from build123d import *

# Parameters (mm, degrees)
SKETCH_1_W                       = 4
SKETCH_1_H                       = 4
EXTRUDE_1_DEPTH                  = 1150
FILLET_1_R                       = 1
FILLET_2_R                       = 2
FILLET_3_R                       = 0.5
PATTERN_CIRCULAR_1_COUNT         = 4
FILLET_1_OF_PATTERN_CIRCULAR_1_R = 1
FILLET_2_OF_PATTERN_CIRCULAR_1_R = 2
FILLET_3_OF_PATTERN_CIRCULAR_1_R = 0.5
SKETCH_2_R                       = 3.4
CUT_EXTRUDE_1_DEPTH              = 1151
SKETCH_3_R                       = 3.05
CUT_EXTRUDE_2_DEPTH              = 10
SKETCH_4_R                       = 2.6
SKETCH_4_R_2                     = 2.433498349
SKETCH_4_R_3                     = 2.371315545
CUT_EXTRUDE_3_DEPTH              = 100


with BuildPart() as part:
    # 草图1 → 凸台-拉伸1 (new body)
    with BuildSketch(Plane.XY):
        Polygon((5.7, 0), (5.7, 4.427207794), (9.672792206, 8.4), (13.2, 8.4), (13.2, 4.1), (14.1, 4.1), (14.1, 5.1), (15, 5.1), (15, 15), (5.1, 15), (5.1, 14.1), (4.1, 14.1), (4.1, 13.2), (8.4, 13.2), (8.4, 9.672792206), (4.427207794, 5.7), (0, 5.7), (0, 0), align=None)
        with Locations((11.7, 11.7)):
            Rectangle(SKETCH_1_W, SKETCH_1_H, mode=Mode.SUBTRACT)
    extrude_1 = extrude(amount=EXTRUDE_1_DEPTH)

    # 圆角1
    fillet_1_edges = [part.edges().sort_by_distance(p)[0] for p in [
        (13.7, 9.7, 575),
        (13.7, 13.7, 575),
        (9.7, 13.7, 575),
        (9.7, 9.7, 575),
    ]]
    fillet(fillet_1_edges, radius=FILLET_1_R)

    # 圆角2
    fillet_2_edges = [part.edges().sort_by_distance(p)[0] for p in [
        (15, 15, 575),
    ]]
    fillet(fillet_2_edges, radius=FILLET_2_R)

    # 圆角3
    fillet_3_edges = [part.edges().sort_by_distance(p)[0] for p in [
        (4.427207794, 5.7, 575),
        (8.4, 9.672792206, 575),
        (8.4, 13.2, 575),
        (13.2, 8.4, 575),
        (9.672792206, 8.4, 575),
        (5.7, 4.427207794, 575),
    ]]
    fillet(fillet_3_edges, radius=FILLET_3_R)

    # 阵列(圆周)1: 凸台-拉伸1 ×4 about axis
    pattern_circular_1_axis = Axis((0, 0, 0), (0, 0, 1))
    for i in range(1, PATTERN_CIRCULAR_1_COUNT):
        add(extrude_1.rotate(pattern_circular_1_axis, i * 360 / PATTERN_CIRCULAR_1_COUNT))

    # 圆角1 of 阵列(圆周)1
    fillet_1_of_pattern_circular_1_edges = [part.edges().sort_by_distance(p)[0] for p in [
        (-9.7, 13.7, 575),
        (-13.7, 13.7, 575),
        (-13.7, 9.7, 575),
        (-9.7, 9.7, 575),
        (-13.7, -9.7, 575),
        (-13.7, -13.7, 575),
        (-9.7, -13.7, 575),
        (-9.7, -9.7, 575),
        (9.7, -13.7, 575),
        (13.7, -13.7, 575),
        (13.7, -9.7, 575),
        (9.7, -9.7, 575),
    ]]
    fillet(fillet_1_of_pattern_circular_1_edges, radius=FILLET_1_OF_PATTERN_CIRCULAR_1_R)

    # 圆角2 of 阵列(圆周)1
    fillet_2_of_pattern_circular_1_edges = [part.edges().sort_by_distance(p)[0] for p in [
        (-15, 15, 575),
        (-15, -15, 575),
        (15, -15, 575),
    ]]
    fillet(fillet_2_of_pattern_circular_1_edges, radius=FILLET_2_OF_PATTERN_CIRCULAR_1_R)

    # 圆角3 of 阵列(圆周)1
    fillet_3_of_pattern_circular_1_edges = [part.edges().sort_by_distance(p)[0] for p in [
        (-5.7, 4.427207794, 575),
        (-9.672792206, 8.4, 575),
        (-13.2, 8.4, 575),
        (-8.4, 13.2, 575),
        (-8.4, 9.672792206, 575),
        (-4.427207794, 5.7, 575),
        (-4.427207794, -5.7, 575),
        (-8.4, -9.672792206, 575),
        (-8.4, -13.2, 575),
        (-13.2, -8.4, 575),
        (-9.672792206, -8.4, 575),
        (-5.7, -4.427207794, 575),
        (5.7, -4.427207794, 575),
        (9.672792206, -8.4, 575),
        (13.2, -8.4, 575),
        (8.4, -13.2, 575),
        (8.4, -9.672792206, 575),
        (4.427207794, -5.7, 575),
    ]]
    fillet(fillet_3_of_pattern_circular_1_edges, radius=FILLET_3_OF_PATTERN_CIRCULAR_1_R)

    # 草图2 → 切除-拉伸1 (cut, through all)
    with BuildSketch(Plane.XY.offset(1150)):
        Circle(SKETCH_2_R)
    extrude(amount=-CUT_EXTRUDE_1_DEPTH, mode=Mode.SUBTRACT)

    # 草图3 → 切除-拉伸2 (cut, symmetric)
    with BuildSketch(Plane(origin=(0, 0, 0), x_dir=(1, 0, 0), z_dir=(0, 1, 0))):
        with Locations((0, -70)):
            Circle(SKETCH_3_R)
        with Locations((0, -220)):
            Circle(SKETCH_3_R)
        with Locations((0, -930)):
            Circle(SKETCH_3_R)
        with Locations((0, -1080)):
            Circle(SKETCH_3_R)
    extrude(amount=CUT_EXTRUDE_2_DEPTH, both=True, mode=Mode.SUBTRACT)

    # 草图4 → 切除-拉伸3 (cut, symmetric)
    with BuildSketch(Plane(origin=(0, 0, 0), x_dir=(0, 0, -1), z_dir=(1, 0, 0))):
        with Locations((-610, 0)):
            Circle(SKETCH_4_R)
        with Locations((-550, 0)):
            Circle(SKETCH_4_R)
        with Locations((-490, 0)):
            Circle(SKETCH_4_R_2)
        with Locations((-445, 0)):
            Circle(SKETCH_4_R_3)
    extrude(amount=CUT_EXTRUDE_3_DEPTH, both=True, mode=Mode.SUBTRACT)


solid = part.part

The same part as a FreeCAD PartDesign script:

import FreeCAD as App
import Part
import Sketcher
from FreeCAD import Vector
Q = App.Units.Quantity


def edges_at(feature, points):
    """Names of the edges that pass closest to the given points."""
    edges = feature.Shape.Edges
    near = lambda p: min(range(len(edges)), key=lambda i: edges[i].distToShape(Part.Vertex(*p))[0])
    return sorted({f"Edge{near(p) + 1}" for p in points})


def add_polygon(sketch, points):
    """Adds a closed chain of lines whose ends are joined by coincident constraints."""
    first, n = sketch.GeometryCount, len(points)
    for a, b in zip(points, points[1:] + points[:1]):
        sketch.addGeometry(Part.LineSegment(App.Vector(*a, 0), App.Vector(*b, 0)), False)
    for i in range(n):
        sketch.addConstraint(Sketcher.Constraint("Coincident", first + i, 2, first + (i + 1) % n, 1))

doc = App.newDocument("Part")
body = doc.addObject("PartDesign::Body", "Body")

sketch1 = body.newObject("Sketcher::SketchObject", "Sketch")
sketch1.AttachmentSupport = (doc.getObject("XY_Plane"), [""])
sketch1.MapMode = "FlatFace"
add_polygon(sketch1, [(5.7, 0), (5.7, 4.4), (9.7, 8.4), (13.2, 8.4), (13.2, 4.1), (14.1, 4.1), (14.1, 5.1), (15, 5.1), (15, 15), (5.1, 15), (5.1, 14.1), (4.1, 14.1), (4.1, 13.2), (8.4, 13.2), (8.4, 9.7), (4.4, 5.7), (0, 5.7), (0, 0)])
add_polygon(sketch1, [(13.7, 9.7), (9.7, 9.7), (9.7, 13.7), (13.7, 13.7)])
sketch1.addConstraint(Sketcher.Constraint("Vertical", 0))
sketch1.addConstraint(Sketcher.Constraint("Horizontal", 2))
sketch1.addConstraint(Sketcher.Constraint("Vertical", 3))
sketch1.addConstraint(Sketcher.Constraint("Horizontal", 4))
sketch1.addConstraint(Sketcher.Constraint("Vertical", 5))
sketch1.addConstraint(Sketcher.Constraint("Horizontal", 6))
sketch1.addConstraint(Sketcher.Constraint("Vertical", 7))
sketch1.addConstraint(Sketcher.Constraint("Horizontal", 8))
sketch1.addConstraint(Sketcher.Constraint("Vertical", 9))
sketch1.addConstraint(Sketcher.Constraint("Horizontal", 10))
sketch1.addConstraint(Sketcher.Constraint("Vertical", 11))
sketch1.addConstraint(Sketcher.Constraint("Horizontal", 12))
sketch1.addConstraint(Sketcher.Constraint("Vertical", 13))
sketch1.addConstraint(Sketcher.Constraint("Horizontal", 15))
sketch1.addConstraint(Sketcher.Constraint("Vertical", 16))
sketch1.addConstraint(Sketcher.Constraint("Horizontal", 17))
sketch1.addConstraint(Sketcher.Constraint("Horizontal", 18))
sketch1.addConstraint(Sketcher.Constraint("Vertical", 19))
sketch1.addConstraint(Sketcher.Constraint("Horizontal", 20))
sketch1.addConstraint(Sketcher.Constraint("Vertical", 21))
sketch1.addConstraint(Sketcher.Constraint("Coincident", 16, 2, -1, 1))
sketch1.addConstraint(Sketcher.Constraint("Parallel", 1, 14))
sketch1.addConstraint(Sketcher.Constraint("Equal", 4, 6))
sketch1.addConstraint(Sketcher.Constraint("Equal", 15, 0))
sketch1.addConstraint(Sketcher.Constraint("Equal", 12, 3))
sketch1.addConstraint(Sketcher.Constraint("Equal", 10, 5))
sketch1.addConstraint(Sketcher.Constraint("Equal", 8, 7))
sketch1.addConstraint(Sketcher.Constraint("Equal", 6, 9))
sketch1.addConstraint(Sketcher.Constraint("Equal", 9, 11))
sketch1.addConstraint(Sketcher.Constraint("Equal", 2, 13))
sketch1.addConstraint(Sketcher.Constraint("Equal", 17, 16))
sketch1.addConstraint(Sketcher.Constraint("Equal", 20, 19))
sketch1.addConstraint(Sketcher.Constraint("DistanceX", 10, 2, 10, 1, Q("1 mm")))
sketch1.addConstraint(Sketcher.Constraint("DistanceX", 18, 2, 18, 1, Q("4 mm")))
sketch1.addConstraint(Sketcher.Constraint("Angle", 1, Q("45 deg")))
sketch1.addConstraint(Sketcher.Constraint("DistanceX", 4, 1, 4, 2, Q("0.9 mm")))
sketch1.addConstraint(Sketcher.Constraint("DistanceX", 8, 2, 8, 1, Q("9.9 mm")))
sketch1.addConstraint(Sketcher.Constraint("DistanceX", 12, 1, 12, 2, Q("4.3 mm")))
sketch1.addConstraint(Sketcher.Constraint("DistanceX", 17, 1, 17, 2, Q("5.7 mm")))
sketch1.addConstraint(Sketcher.Constraint("DistanceX", -1, 1, 6, 2, Q("15 mm")))
sketch1.addConstraint(Sketcher.Constraint("DistanceX", -1, 1, 18, 2, Q("9.7 mm")))
sketch1.addConstraint(Sketcher.Constraint("DistanceY", -1, 1, 18, 2, Q("9.7 mm")))
sketch1.addConstraint(Sketcher.Constraint("DistanceX", 2, 1, 2, 2, Q("3.527208 mm")))
pad1 = body.newObject("PartDesign::Pad", "Pad")
pad1.Profile = sketch1
pad1.Length = 1150
doc.recompute()

fillet = body.newObject("PartDesign::Fillet", "Fillet")
fillet.Base = (pad1, edges_at(pad1, [
    (13.7, 9.7, 575),
    (13.7, 13.7, 575),
    (9.7, 13.7, 575),
    (9.7, 9.7, 575),
]))
fillet.Radius = 1
doc.recompute()

fillet2 = body.newObject("PartDesign::Fillet", "Fillet001")
fillet2.Base = (fillet, edges_at(fillet, [(15, 15, 575)]))
fillet2.Radius = 2
doc.recompute()

fillet3 = body.newObject("PartDesign::Fillet", "Fillet002")
fillet3.Base = (fillet2, edges_at(fillet2, [
    (4.427, 5.7, 575),
    (8.4, 9.673, 575),
    (8.4, 13.2, 575),
    (13.2, 8.4, 575),
    (9.673, 8.4, 575),
    (5.7, 4.427, 575),
]))
fillet3.Radius = 0.5
doc.recompute()

polarpattern = body.newObject("PartDesign::PolarPattern", "PolarPattern")
polarpattern.Originals = [pad1]
polarpattern.Axis = (doc.getObject("Z_Axis"), [""])
polarpattern.Angle = 360
polarpattern.Occurrences = 4
body.Tip = polarpattern
doc.recompute()

fillet4 = body.newObject("PartDesign::Fillet", "Fillet003")
fillet4.Base = (polarpattern, edges_at(polarpattern, [
    (-9.7, 13.7, 575),
    (-13.7, 13.7, 575),
    (-13.7, 9.7, 575),
    (-9.7, 9.7, 575),
    (-13.7, -9.7, 575),
    (-13.7, -13.7, 575),
    (-9.7, -13.7, 575),
    (-9.7, -9.7, 575),
    (9.7, -13.7, 575),
    (13.7, -13.7, 575),
    (13.7, -9.7, 575),
    (9.7, -9.7, 575),
]))
fillet4.Radius = 1
doc.recompute()

fillet5 = body.newObject("PartDesign::Fillet", "Fillet004")
fillet5.Base = (fillet4, edges_at(fillet4, [(-15, 15, 575), (-15, -15, 575), (15, -15, 575)]))
fillet5.Radius = 2
doc.recompute()

fillet6 = body.newObject("PartDesign::Fillet", "Fillet005")
fillet6.Base = (fillet5, edges_at(fillet5, [
    (-5.7, 4.427, 575),
    (-9.673, 8.4, 575),
    (-13.2, 8.4, 575),
    (-8.4, 13.2, 575),
    (-8.4, 9.673, 575),
    (-4.427, 5.7, 575),
    (-4.427, -5.7, 575),
    (-8.4, -9.673, 575),
    (-8.4, -13.2, 575),
    (-13.2, -8.4, 575),
    (-9.673, -8.4, 575),
    (-5.7, -4.427, 575),
    (5.7, -4.427, 575),
    (9.673, -8.4, 575),
    (13.2, -8.4, 575),
    (8.4, -13.2, 575),
    (8.4, -9.673, 575),
    (4.427, -5.7, 575),
]))
fillet6.Radius = 0.5

sketch2 = body.newObject("Sketcher::SketchObject", "Sketch001")
sketch2.AttachmentSupport = (doc.getObject("XY_Plane"), [""])
sketch2.MapMode = "FlatFace"
sketch2.AttachmentOffset = App.Placement(Vector(0, 0, 1150), App.Rotation())
sketch2.addGeometry(Part.Circle(Vector(0, 0, 0), Vector(0, 0, 1), 3.4), False)
sketch2.addConstraint(Sketcher.Constraint("Coincident", 0, 3, -1, 1))
sketch2.addConstraint(Sketcher.Constraint("Diameter", 0, Q("6.8 mm")))
pocket1 = body.newObject("PartDesign::Pocket", "Pocket")
pocket1.Profile = sketch2
pocket1.Type = "ThroughAll"

sketch3 = body.newObject("Sketcher::SketchObject", "Sketch002")
sketch3.AttachmentSupport = (doc.getObject("XZ_Plane"), [""])
sketch3.MapMode = "FlatFace"
sketch3.addGeometry(Part.Circle(Vector(0, 70, 0), Vector(0, 0, 1), 3), False)
sketch3.addGeometry(Part.Circle(Vector(0, 220, 0), Vector(0, 0, 1), 3), False)
sketch3.addGeometry(Part.Circle(Vector(0, 930, 0), Vector(0, 0, 1), 3), False)
sketch3.addGeometry(Part.Circle(Vector(0, 1080, 0), Vector(0, 0, 1), 3), False)
sketch3.addConstraint(Sketcher.Constraint("Equal", 0, 1))
sketch3.addConstraint(Sketcher.Constraint("Equal", 1, 2))
sketch3.addConstraint(Sketcher.Constraint("Equal", 2, 3))
sketch3.addConstraint(Sketcher.Constraint("PointOnObject", 0, 3, -2))
sketch3.addConstraint(Sketcher.Constraint("PointOnObject", 1, 3, -2))
sketch3.addConstraint(Sketcher.Constraint("PointOnObject", 2, 3, -2))
sketch3.addConstraint(Sketcher.Constraint("PointOnObject", 3, 3, -2))
sketch3.addConstraint(Sketcher.Constraint("Diameter", 0, Q("6.1 mm")))
sketch3.addConstraint(Sketcher.Constraint("DistanceY", -1, 1, 0, 3, Q("70 mm")))
sketch3.addConstraint(Sketcher.Constraint("DistanceY", -1, 1, 1, 3, Q("220 mm")))
sketch3.addConstraint(Sketcher.Constraint("DistanceY", -1, 1, 2, 3, Q("930 mm")))
sketch3.addConstraint(Sketcher.Constraint("DistanceY", -1, 1, 3, 3, Q("1080 mm")))
pocket2 = body.newObject("PartDesign::Pocket", "Pocket001")
pocket2.Profile = sketch3
pocket2.Length = 20
pocket2.Midplane = True

sketch4 = body.newObject("Sketcher::SketchObject", "Sketch003")
sketch4.AttachmentSupport = (doc.getObject("YZ_Plane"), [""])
sketch4.MapMode = "FlatFace"
sketch4.addGeometry(Part.Circle(Vector(0, 610, 0), Vector(0, 0, 1), 2.6), False)
sketch4.addGeometry(Part.Circle(Vector(0, 550, 0), Vector(0, 0, 1), 2.6), False)
sketch4.addGeometry(Part.Circle(Vector(0, 490, 0), Vector(0, 0, 1), 2.4), False)
sketch4.addGeometry(Part.Circle(Vector(0, 445, 0), Vector(0, 0, 1), 2.4), False)
sketch4.addConstraint(Sketcher.Constraint("Equal", 0, 1))
sketch4.addConstraint(Sketcher.Constraint("PointOnObject", 0, 3, -2))
sketch4.addConstraint(Sketcher.Constraint("PointOnObject", 1, 3, -2))
sketch4.addConstraint(Sketcher.Constraint("PointOnObject", 2, 3, -2))
sketch4.addConstraint(Sketcher.Constraint("PointOnObject", 3, 3, -2))
sketch4.addConstraint(Sketcher.Constraint("Diameter", 0, Q("5.2 mm")))
sketch4.addConstraint(Sketcher.Constraint("DistanceY", -1, 1, 0, 3, Q("610 mm")))
sketch4.addConstraint(Sketcher.Constraint("DistanceY", -1, 1, 1, 3, Q("550 mm")))
sketch4.addConstraint(Sketcher.Constraint("DistanceY", -1, 1, 2, 3, Q("490 mm")))
sketch4.addConstraint(Sketcher.Constraint("DistanceY", -1, 1, 3, 3, Q("445 mm")))
sketch4.addConstraint(Sketcher.Constraint("Diameter", 3, Q("4.742631 mm")))
sketch4.addConstraint(Sketcher.Constraint("Diameter", 2, Q("4.866997 mm")))
pocket3 = body.newObject("PartDesign::Pocket", "Pocket002")
pocket3.Profile = sketch4
pocket3.Length = 200
pocket3.Midplane = True

doc.recompute()
